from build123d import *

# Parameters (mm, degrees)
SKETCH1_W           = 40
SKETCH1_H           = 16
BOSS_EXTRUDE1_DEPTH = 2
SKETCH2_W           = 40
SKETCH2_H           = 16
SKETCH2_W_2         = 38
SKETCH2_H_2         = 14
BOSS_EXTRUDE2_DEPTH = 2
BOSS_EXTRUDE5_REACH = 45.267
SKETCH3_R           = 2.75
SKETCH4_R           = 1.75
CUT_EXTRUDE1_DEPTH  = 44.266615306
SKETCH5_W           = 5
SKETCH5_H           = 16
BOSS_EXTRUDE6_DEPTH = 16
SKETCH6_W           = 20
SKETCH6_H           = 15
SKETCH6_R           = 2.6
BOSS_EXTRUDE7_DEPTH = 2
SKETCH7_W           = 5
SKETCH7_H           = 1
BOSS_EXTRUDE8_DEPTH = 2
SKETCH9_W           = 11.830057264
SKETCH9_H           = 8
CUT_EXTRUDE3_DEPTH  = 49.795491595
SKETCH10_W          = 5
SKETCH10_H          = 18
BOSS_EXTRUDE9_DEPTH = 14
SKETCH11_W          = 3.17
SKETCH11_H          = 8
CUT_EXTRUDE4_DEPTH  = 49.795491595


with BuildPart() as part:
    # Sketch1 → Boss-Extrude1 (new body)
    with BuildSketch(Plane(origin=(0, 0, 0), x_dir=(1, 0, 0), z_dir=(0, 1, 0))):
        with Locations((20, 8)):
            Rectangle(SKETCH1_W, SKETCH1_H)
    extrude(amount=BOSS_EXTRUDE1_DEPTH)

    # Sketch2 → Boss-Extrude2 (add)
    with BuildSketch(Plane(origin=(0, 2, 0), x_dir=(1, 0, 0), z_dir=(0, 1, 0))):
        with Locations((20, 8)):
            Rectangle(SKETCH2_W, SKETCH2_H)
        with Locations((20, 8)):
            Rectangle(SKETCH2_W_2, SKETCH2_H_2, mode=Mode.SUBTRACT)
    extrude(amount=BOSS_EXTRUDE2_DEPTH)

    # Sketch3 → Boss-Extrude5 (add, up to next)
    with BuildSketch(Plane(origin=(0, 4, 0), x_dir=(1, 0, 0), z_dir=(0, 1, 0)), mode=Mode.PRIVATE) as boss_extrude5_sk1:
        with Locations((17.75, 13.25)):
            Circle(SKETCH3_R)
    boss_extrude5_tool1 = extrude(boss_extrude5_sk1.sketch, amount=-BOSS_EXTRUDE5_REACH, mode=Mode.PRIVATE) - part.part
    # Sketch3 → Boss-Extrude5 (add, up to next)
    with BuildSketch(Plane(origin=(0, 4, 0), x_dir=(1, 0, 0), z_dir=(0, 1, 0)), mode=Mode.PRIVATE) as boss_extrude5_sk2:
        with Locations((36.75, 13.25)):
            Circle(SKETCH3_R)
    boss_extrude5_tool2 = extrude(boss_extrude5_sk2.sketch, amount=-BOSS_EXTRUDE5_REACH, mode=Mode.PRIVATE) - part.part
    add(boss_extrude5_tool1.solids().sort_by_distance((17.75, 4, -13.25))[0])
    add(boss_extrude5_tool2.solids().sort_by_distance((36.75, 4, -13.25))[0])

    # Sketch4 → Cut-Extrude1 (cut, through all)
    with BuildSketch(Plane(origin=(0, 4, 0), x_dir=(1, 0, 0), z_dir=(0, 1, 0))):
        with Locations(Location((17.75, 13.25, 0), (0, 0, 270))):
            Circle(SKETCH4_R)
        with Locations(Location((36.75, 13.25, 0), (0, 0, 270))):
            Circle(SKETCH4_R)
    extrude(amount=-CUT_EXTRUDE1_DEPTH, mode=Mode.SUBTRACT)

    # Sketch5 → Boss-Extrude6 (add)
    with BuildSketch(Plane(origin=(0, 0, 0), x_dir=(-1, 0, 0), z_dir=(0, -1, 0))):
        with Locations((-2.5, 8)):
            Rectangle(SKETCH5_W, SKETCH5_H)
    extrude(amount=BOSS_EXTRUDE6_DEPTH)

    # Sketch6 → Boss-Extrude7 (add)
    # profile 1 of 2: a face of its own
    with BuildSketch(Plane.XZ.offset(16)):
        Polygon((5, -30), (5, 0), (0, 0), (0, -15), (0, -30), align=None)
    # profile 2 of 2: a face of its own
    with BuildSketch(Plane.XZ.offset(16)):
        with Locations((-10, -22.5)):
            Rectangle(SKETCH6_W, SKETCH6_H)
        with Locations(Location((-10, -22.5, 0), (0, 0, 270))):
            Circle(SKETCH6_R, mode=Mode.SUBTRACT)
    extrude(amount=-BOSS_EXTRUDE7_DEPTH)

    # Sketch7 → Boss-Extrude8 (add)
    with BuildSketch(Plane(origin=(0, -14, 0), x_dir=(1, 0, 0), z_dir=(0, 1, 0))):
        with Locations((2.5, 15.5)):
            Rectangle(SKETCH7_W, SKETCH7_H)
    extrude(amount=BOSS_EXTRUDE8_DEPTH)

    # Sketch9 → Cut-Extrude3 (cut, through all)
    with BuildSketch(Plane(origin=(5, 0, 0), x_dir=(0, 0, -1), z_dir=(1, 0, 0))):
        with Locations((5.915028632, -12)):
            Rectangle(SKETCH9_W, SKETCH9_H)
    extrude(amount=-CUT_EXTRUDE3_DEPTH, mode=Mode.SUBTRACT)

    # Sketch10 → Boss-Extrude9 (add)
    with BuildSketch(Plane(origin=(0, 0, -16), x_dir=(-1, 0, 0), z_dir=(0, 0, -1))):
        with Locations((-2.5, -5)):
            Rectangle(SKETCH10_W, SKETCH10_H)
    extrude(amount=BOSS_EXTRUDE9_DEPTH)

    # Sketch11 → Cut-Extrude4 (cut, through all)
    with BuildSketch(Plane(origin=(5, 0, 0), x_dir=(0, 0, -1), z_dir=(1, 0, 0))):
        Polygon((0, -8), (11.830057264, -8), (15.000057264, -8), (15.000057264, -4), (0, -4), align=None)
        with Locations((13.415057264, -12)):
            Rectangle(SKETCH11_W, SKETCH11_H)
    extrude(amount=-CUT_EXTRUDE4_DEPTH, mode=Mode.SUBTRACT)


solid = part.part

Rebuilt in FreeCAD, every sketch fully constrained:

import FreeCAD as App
import Part
import Sketcher

doc = App.newDocument("Part")
params = doc.addObject("Spreadsheet::Sheet", "Params")
for row, (alias, value) in enumerate([
    ("sketch1_width", "40 mm"),
    ("sketch1_height", "16 mm"),
    ("pad1_length", "2 mm"),
    ("sketch2_width", "40 mm"),
    ("sketch2_width2", "38 mm"),
    ("sketch2_height", "16 mm"),
    ("sketch2_height2", "14 mm"),
    ("pad2_length", "2 mm"),
    ("sketch3_diameter", "5.5 mm"),
    ("sketch4_diameter", "5.5 mm"),
    ("sketch5_diameter", "3.5 mm"),
    ("sketch6_width", "5 mm"),
    ("sketch6_height", "16 mm"),
    ("pad5_length", "16 mm"),
    ("sketch7_diameter", "5.2 mm"),
    ("sketch7_width", "5 mm"),
    ("sketch7_width2", "20 mm"),
    ("sketch7_height", "30 mm"),
    ("pad6_length", "2 mm"),
    ("sketch8_width", "5 mm"),
    ("sketch8_height", "1 mm"),
    ("pad7_length", "2 mm"),
    ("sketch9_width", "8 mm"),
    ("sketch10_width", "5 mm"),
    ("sketch10_height", "18 mm"),
    ("pad8_length", "14 mm"),
    ("sketch11_width", "8 mm"),
    ("sketch11_width2", "12 mm"),
    ("sketch11_height", "3.17 mm"),
], start=1):
    params.set(f"A{row}", alias)
    params.set(f"B{row}", "=" + value)
    params.setAlias(f"B{row}", alias)

body = doc.addObject("PartDesign::Body", "Body")

# Sketch on XZ plane
sketch1 = body.newObject("Sketcher::SketchObject", "Sketch")
sketch1.AttachmentSupport = (doc.getObject("XZ_Plane"), [""])
sketch1.MapMode = "FlatFace"
sketch1.addGeometry([
    Part.LineSegment(App.Vector(0, -16, 0), App.Vector(0, 0, 0)),
    Part.LineSegment(App.Vector(0, 0, 0), App.Vector(40, 0, 0)),
    Part.LineSegment(App.Vector(40, 0, 0), App.Vector(40, -16, 0)),
    Part.LineSegment(App.Vector(40, -16, 0), App.Vector(0, -16, 0)),
], False)
sketch1.addConstraint([
    Sketcher.Constraint("Coincident", 0, 2, 1, 1),
    Sketcher.Constraint("Coincident", 1, 2, 2, 1),
    Sketcher.Constraint("Coincident", 2, 2, 3, 1),
    Sketcher.Constraint("Coincident", 3, 2, 0, 1),
    Sketcher.Constraint("Vertical", 0),
    Sketcher.Constraint("Horizontal", 1),
    Sketcher.Constraint("Vertical", 2),
    Sketcher.Constraint("Horizontal", 3),
    Sketcher.Constraint("Coincident", 0, 2, -1, 1),
    Sketcher.Constraint("DistanceX", 1, 1, 1, 2, 40.0),
    Sketcher.Constraint("DistanceY", 0, 1, 0, 2, 16.0),
])
sketch1.setExpression("Constraints[9]", "Params.sketch1_width")
sketch1.setExpression("Constraints[10]", "Params.sketch1_height")
pad1 = body.newObject("PartDesign::Pad", "Pad")
pad1.Profile = sketch1
pad1.setExpression("Length", "Params.pad1_length")
pad1.Reversed = True

# Sketch on XZ plane
sketch2 = body.newObject("Sketcher::SketchObject", "Sketch001")
sketch2.AttachmentSupport = (doc.getObject("XZ_Plane"), [""])
sketch2.MapMode = "FlatFace"
sketch2.AttachmentOffset = App.Placement(App.Vector(0, 0, -2), App.Rotation())
sketch2.addGeometry([
    Part.LineSegment(App.Vector(0, -16, 0), App.Vector(0, 0, 0)),  # 0
    Part.LineSegment(App.Vector(0, 0, 0), App.Vector(40, 0, 0)),  # 1
    Part.LineSegment(App.Vector(40, 0, 0), App.Vector(40, -16, 0)),  # 2
    Part.LineSegment(App.Vector(40, -16, 0), App.Vector(0, -16, 0)),  # 3
    Part.LineSegment(App.Vector(39, -1, 0), App.Vector(1, -1, 0)),  # 4
    Part.LineSegment(App.Vector(1, -1, 0), App.Vector(1, -15, 0)),  # 5
    Part.LineSegment(App.Vector(1, -15, 0), App.Vector(39, -15, 0)),  # 6
    Part.LineSegment(App.Vector(39, -15, 0), App.Vector(39, -1, 0)),  # 7
], False)
sketch2.addConstraint([
    Sketcher.Constraint("Coincident", 0, 2, 1, 1),
    Sketcher.Constraint("Coincident", 1, 2, 2, 1),
    Sketcher.Constraint("Coincident", 2, 2, 3, 1),
    Sketcher.Constraint("Coincident", 3, 2, 0, 1),
    Sketcher.Constraint("Coincident", 4, 2, 5, 1),
    Sketcher.Constraint("Coincident", 5, 2, 6, 1),
    Sketcher.Constraint("Coincident", 6, 2, 7, 1),
    Sketcher.Constraint("Coincident", 7, 2, 4, 1),
    Sketcher.Constraint("Vertical", 0),
    Sketcher.Constraint("Horizontal", 1),
    Sketcher.Constraint("Vertical", 2),
    Sketcher.Constraint("Horizontal", 3),
    Sketcher.Constraint("Horizontal", 4),
    Sketcher.Constraint("Vertical", 5),
    Sketcher.Constraint("Horizontal", 6),
    Sketcher.Constraint("Vertical", 7),
    Sketcher.Constraint("Coincident", 0, 2, -1, 1),
    Sketcher.Constraint("DistanceX", 1, 1, 1, 2, 40.0),
    Sketcher.Constraint("DistanceX", 4, 2, 4, 1, 38.0),
    Sketcher.Constraint("DistanceY", 0, 1, 0, 2, 16.0),
    Sketcher.Constraint("DistanceY", 5, 2, 5, 1, 14.0),
    Sketcher.Constraint("DistanceX", -1, 1, 4, 2, 1.0),
    Sketcher.Constraint("DistanceY", 4, 2, -1, 1, 1.0),
])
sketch2.setExpression("Constraints[17]", "Params.sketch2_width")
sketch2.setExpression("Constraints[18]", "Params.sketch2_width2")
sketch2.setExpression("Constraints[19]", "Params.sketch2_height")
sketch2.setExpression("Constraints[20]", "Params.sketch2_height2")
pad2 = body.newObject("PartDesign::Pad", "Pad001")
pad2.Profile = sketch2
pad2.setExpression("Length", "Params.pad2_length")
pad2.Reversed = True

# Sketch on XZ plane
sketch3 = body.newObject("Sketcher::SketchObject", "Sketch002")
sketch3.AttachmentSupport = (doc.getObject("XZ_Plane"), [""])
sketch3.MapMode = "FlatFace"
sketch3.AttachmentOffset = App.Placement(App.Vector(0, 0, -4), App.Rotation())
sketch3.addGeometry(Part.Circle(App.Vector(17.8, -13.2, 0), App.Vector(0, 0, 1), 2.8), False)
sketch3.addConstraint([
    Sketcher.Constraint("Diameter", 0, 5.5),
    Sketcher.Constraint("DistanceX", -1, 1, 0, 3, 17.75),
    Sketcher.Constraint("DistanceY", 0, 3, -1, 1, 13.25),
])
sketch3.setExpression("Constraints[0]", "Params.sketch3_diameter")
pad3 = body.newObject("PartDesign::Pad", "Pad002")
pad3.Profile = sketch3
pad3.Type = "UpToFirst"

# Sketch on XZ plane
sketch4 = body.newObject("Sketcher::SketchObject", "Sketch003")
sketch4.AttachmentSupport = (doc.getObject("XZ_Plane"), [""])
sketch4.MapMode = "FlatFace"
sketch4.AttachmentOffset = App.Placement(App.Vector(0, 0, -4), App.Rotation())
sketch4.addGeometry(Part.Circle(App.Vector(36.8, -13.2, 0), App.Vector(0, 0, 1), 2.8), False)
sketch4.addConstraint([
    Sketcher.Constraint("Diameter", 0, 5.5),
    Sketcher.Constraint("DistanceX", -1, 1, 0, 3, 36.75),
    Sketcher.Constraint("DistanceY", 0, 3, -1, 1, 13.25),
])
sketch4.setExpression("Constraints[0]", "Params.sketch4_diameter")
pad4 = body.newObject("PartDesign::Pad", "Pad003")
pad4.Profile = sketch4
pad4.Type = "UpToFirst"

# Sketch on XZ plane
sketch5 = body.newObject("Sketcher::SketchObject", "Sketch004")
sketch5.AttachmentSupport = (doc.getObject("XZ_Plane"), [""])
sketch5.MapMode = "FlatFace"
sketch5.AttachmentOffset = App.Placement(App.Vector(0, 0, -4), App.Rotation())
sketch5.addGeometry([
    Part.Circle(App.Vector(17.8, -13.2, 0), App.Vector(0, 0, 1), 1.8),
    Part.Circle(App.Vector(36.8, -13.2, 0), App.Vector(0, 0, 1), 1.8),
], False)
sketch5.addConstraint([
    Sketcher.Constraint("Equal", 0, 1),
    Sketcher.Constraint("Horizontal", 0, 3, 1, 3),
    Sketcher.Constraint("Diameter", 0, 3.5),
    Sketcher.Constraint("DistanceX", 0, 3, 1, 3, 19.0),
    Sketcher.Constraint("DistanceX", -1, 1, 0, 3, 17.75),
    Sketcher.Constraint("DistanceY", 0, 3, -1, 1, 13.25),
])
sketch5.setExpression("Constraints[2]", "Params.sketch5_diameter")
pocket1 = body.newObject("PartDesign::Pocket", "Pocket")
pocket1.Profile = sketch5
pocket1.Type = "ThroughAll"
pocket1.Reversed = True

# Sketch on XZ plane
sketch6 = body.newObject("Sketcher::SketchObject", "Sketch005")
sketch6.AttachmentSupport = (doc.getObject("XZ_Plane"), [""])
sketch6.MapMode = "FlatFace"
sketch6.addGeometry([
    Part.LineSegment(App.Vector(5, -16, 0), App.Vector(5, 0, 0)),
    Part.LineSegment(App.Vector(5, 0, 0), App.Vector(0, 0, 0)),
    Part.LineSegment(App.Vector(0, 0, 0), App.Vector(0, -16, 0)),
    Part.LineSegment(App.Vector(0, -16, 0), App.Vector(5, -16, 0)),
], False)
sketch6.addConstraint([
    Sketcher.Constraint("Coincident", 0, 2, 1, 1),
    Sketcher.Constraint("Coincident", 1, 2, 2, 1),
    Sketcher.Constraint("Coincident", 2, 2, 3, 1),
    Sketcher.Constraint("Coincident", 3, 2, 0, 1),
    Sketcher.Constraint("Vertical", 0),
    Sketcher.Constraint("Horizontal", 1),
    Sketcher.Constraint("Vertical", 2),
    Sketcher.Constraint("Horizontal", 3),
    Sketcher.Constraint("Coincident", 1, 2, -1, 1),
    Sketcher.Constraint("DistanceX", 1, 2, 1, 1, 5.0),
    Sketcher.Constraint("DistanceY", 0, 1, 0, 2, 16.0),
])
sketch6.setExpression("Constraints[9]", "Params.sketch6_width")
sketch6.setExpression("Constraints[10]", "Params.sketch6_height")
pad5 = body.newObject("PartDesign::Pad", "Pad004")
pad5.Profile = sketch6
pad5.setExpression("Length", "Params.pad5_length")

# Sketch on XZ plane
sketch7 = body.newObject("Sketcher::SketchObject", "Sketch006")
sketch7.AttachmentSupport = (doc.getObject("XZ_Plane"), [""])
sketch7.MapMode = "FlatFace"
sketch7.AttachmentOffset = App.Placement(App.Vector(0, 0, 16), App.Rotation())
sketch7.addGeometry([
    Part.LineSegment(App.Vector(5, -30, 0), App.Vector(5, 0, 0)),  # 0
    Part.LineSegment(App.Vector(5, 0, 0), App.Vector(0, 0, 0)),  # 1
    Part.LineSegment(App.Vector(0, 0, 0), App.Vector(0, -15, 0)),  # 2
    Part.LineSegment(App.Vector(0, -15, 0), App.Vector(-20, -15, 0)),  # 3
    Part.LineSegment(App.Vector(-20, -15, 0), App.Vector(-20, -30, 0)),  # 4
    Part.LineSegment(App.Vector(-20, -30, 0), App.Vector(5, -30, 0)),  # 5
    Part.Circle(App.Vector(-10, -22.5, 0), App.Vector(0, 0, 1), 2.6),  # 6
], False)
sketch7.addConstraint([
    Sketcher.Constraint("Coincident", 0, 2, 1, 1),
    Sketcher.Constraint("Coincident", 1, 2, 2, 1),
    Sketcher.Constraint("Coincident", 2, 2, 3, 1),
    Sketcher.Constraint("Coincident", 3, 2, 4, 1),
    Sketcher.Constraint("Coincident", 4, 2, 5, 1),
    Sketcher.Constraint("Coincident", 5, 2, 0, 1),
    Sketcher.Constraint("Vertical", 0),
    Sketcher.Constraint("Horizontal", 1),
    Sketcher.Constraint("Vertical", 2),
    Sketcher.Constraint("Horizontal", 3),
    Sketcher.Constraint("Vertical", 4),
    Sketcher.Constraint("Horizontal", 5),
    Sketcher.Constraint("Coincident", 1, 2, -1, 1),
    Sketcher.Constraint("Equal", 2, 4),
    Sketcher.Constraint("Diameter", 6, 5.2),
    Sketcher.Constraint("DistanceX", 1, 2, 1, 1, 5.0),
    Sketcher.Constraint("DistanceX", 3, 2, 3, 1, 20.0),
    Sketcher.Constraint("DistanceY", 0, 1, 0, 2, 30.0),
    Sketcher.Constraint("DistanceX", 6, 3, -1, 1, 10.0),
    Sketcher.Constraint("DistanceY", 6, 3, -1, 1, 22.5),
])
sketch7.setExpression("Constraints[14]", "Params.sketch7_diameter")
sketch7.setExpression("Constraints[15]", "Params.sketch7_width")
sketch7.setExpression("Constraints[16]", "Params.sketch7_width2")
sketch7.setExpression("Constraints[17]", "Params.sketch7_height")
pad6 = body.newObject("PartDesign::Pad", "Pad005")
pad6.Profile = sketch7
pad6.setExpression("Length", "Params.pad6_length")
pad6.Reversed = True

# Sketch on XZ plane
sketch8 = body.newObject("Sketcher::SketchObject", "Sketch007")
sketch8.AttachmentSupport = (doc.getObject("XZ_Plane"), [""])
sketch8.MapMode = "FlatFace"
sketch8.AttachmentOffset = App.Placement(App.Vector(0, 0, 14), App.Rotation())
sketch8.addGeometry([
    Part.LineSegment(App.Vector(0, -16, 0), App.Vector(0, -15, 0)),
    Part.LineSegment(App.Vector(0, -15, 0), App.Vector(5, -15, 0)),
    Part.LineSegment(App.Vector(5, -15, 0), App.Vector(5, -16, 0)),
    Part.LineSegment(App.Vector(5, -16, 0), App.Vector(0, -16, 0)),
], False)
sketch8.addConstraint([
    Sketcher.Constraint("Coincident", 0, 2, 1, 1),
    Sketcher.Constraint("Coincident", 1, 2, 2, 1),
    Sketcher.Constraint("Coincident", 2, 2, 3, 1),
    Sketcher.Constraint("Coincident", 3, 2, 0, 1),
    Sketcher.Constraint("Vertical", 0),
    Sketcher.Constraint("Horizontal", 1),
    Sketcher.Constraint("Vertical", 2),
    Sketcher.Constraint("Horizontal", 3),
    Sketcher.Constraint("PointOnObject", 0, 2, -2),
    Sketcher.Constraint("DistanceX", 1, 1, 1, 2, 5.0),
    Sketcher.Constraint("DistanceY", 0, 1, 0, 2, 1.0),
    Sketcher.Constraint("DistanceY", 0, 2, -1, 1, 15.0),
])
sketch8.setExpression("Constraints[9]", "Params.sketch8_width")
sketch8.setExpression("Constraints[10]", "Params.sketch8_height")
pad7 = body.newObject("PartDesign::Pad", "Pad006")
pad7.Profile = sketch8
pad7.setExpression("Length", "Params.pad7_length")
pad7.Reversed = True

# Sketch on YZ plane
sketch9 = body.newObject("Sketcher::SketchObject", "Sketch008")
sketch9.AttachmentSupport = (doc.getObject("YZ_Plane"), [""])
sketch9.MapMode = "FlatFace"
sketch9.AttachmentOffset = App.Placement(App.Vector(0, 0, 5), App.Rotation())
sketch9.addGeometry([
    Part.LineSegment(App.Vector(-8, 0, 0), App.Vector(-16, 0, 0)),
    Part.LineSegment(App.Vector(-16, 0, 0), App.Vector(-16, -12, 0)),
    Part.LineSegment(App.Vector(-16, -12, 0), App.Vector(-8, -12, 0)),
    Part.LineSegment(App.Vector(-8, -12, 0), App.Vector(-8, 0, 0)),
], False)
sketch9.addConstraint([
    Sketcher.Constraint("Coincident", 0, 2, 1, 1),
    Sketcher.Constraint("Coincident", 1, 2, 2, 1),
    Sketcher.Constraint("Coincident", 2, 2, 3, 1),
    Sketcher.Constraint("Coincident", 3, 2, 0, 1),
    Sketcher.Constraint("Horizontal", 0),
    Sketcher.Constraint("Vertical", 1),
    Sketcher.Constraint("Horizontal", 2),
    Sketcher.Constraint("Vertical", 3),
    Sketcher.Constraint("PointOnObject", 0, 2, -1),
    Sketcher.Constraint("DistanceX", 0, 2, 0, 1, 8.0),
    Sketcher.Constraint("DistanceX", 0, 2, -1, 1, 16.0),
    Sketcher.Constraint("DistanceY", 1, 2, 1, 1, 11.830057),
])
sketch9.setExpression("Constraints[9]", "Params.sketch9_width")
pocket2 = body.newObject("PartDesign::Pocket", "Pocket001")
pocket2.Profile = sketch9
pocket2.Type = "ThroughAll"

# Sketch on XY plane
sketch10 = body.newObject("Sketcher::SketchObject", "Sketch009")
sketch10.AttachmentSupport = (doc.getObject("XY_Plane"), [""])
sketch10.MapMode = "FlatFace"
sketch10.AttachmentOffset = App.Placement(App.Vector(0, 0, -16), App.Rotation())
sketch10.addGeometry([
    Part.LineSegment(App.Vector(5, 4, 0), App.Vector(5, -14, 0)),
    Part.LineSegment(App.Vector(5, -14, 0), App.Vector(0, -14, 0)),
    Part.LineSegment(App.Vector(0, -14, 0), App.Vector(0, 4, 0)),
    Part.LineSegment(App.Vector(0, 4, 0), App.Vector(5, 4, 0)),
], False)
sketch10.addConstraint([
    Sketcher.Constraint("Coincident", 0, 2, 1, 1),
    Sketcher.Constraint("Coincident", 1, 2, 2, 1),
    Sketcher.Constraint("Coincident", 2, 2, 3, 1),
    Sketcher.Constraint("Coincident", 3, 2, 0, 1),
    Sketcher.Constraint("Vertical", 0),
    Sketcher.Constraint("Horizontal", 1),
    Sketcher.Constraint("Vertical", 2),
    Sketcher.Constraint("Horizontal", 3),
    Sketcher.Constraint("PointOnObject", 1, 2, -2),
    Sketcher.Constraint("DistanceX", 1, 2, 1, 1, 5.0),
    Sketcher.Constraint("DistanceY", 0, 2, 0, 1, 18.0),
    Sketcher.Constraint("DistanceY", 0, 2, -1, 1, 14.0),
])
sketch10.setExpression("Constraints[9]", "Params.sketch10_width")
sketch10.setExpression("Constraints[10]", "Params.sketch10_height")
pad8 = body.newObject("PartDesign::Pad", "Pad007")
pad8.Profile = sketch10
pad8.setExpression("Length", "Params.pad8_length")
pad8.Reversed = True

# Sketch on YZ plane
sketch11 = body.newObject("Sketcher::SketchObject", "Sketch010")
sketch11.AttachmentSupport = (doc.getObject("YZ_Plane"), [""])
sketch11.MapMode = "FlatFace"
sketch11.AttachmentOffset = App.Placement(App.Vector(0, 0, 5), App.Rotation())
sketch11.addGeometry([
    Part.LineSegment(App.Vector(-8, 0, 0), App.Vector(-8, -11.8, 0)),  # 0
    Part.LineSegment(App.Vector(-8, -11.8, 0), App.Vector(-16, -11.8, 0)),  # 1
    Part.LineSegment(App.Vector(-16, -11.8, 0), App.Vector(-16, -15, 0)),  # 2
    Part.LineSegment(App.Vector(-16, -15, 0), App.Vector(-4, -15, 0)),  # 3
    Part.LineSegment(App.Vector(-4, -15, 0), App.Vector(-4, 0, 0)),  # 4
    Part.LineSegment(App.Vector(-4, 0, 0), App.Vector(-8, 0, 0)),  # 5
], False)
sketch11.addConstraint([
    Sketcher.Constraint("Coincident", 0, 2, 1, 1),
    Sketcher.Constraint("Coincident", 1, 2, 2, 1),
    Sketcher.Constraint("Coincident", 2, 2, 3, 1),
    Sketcher.Constraint("Coincident", 3, 2, 4, 1),
    Sketcher.Constraint("Coincident", 4, 2, 5, 1),
    Sketcher.Constraint("Coincident", 5, 2, 0, 1),
    Sketcher.Constraint("Vertical", 0),
    Sketcher.Constraint("Horizontal", 1),
    Sketcher.Constraint("Vertical", 2),
    Sketcher.Constraint("Horizontal", 3),
    Sketcher.Constraint("Vertical", 4),
    Sketcher.Constraint("Horizontal", 5),
    Sketcher.Constraint("PointOnObject", 4, 2, -1),
    Sketcher.Constraint("DistanceX", 1, 2, 1, 1, 8.0),
    Sketcher.Constraint("DistanceX", 3, 1, 3, 2, 12.0),
    Sketcher.Constraint("DistanceX", 0, 2, -1, 1, 8.0),
    Sketcher.Constraint("DistanceY", 2, 2, 2, 1, 3.17),
    Sketcher.Constraint("DistanceY", 0, 2, 0, 1, 11.830057),
])
sketch11.setExpression("Constraints[13]", "Params.sketch11_width")
sketch11.setExpression("Constraints[14]", "Params.sketch11_width2")
sketch11.setExpression("Constraints[16]", "Params.sketch11_height")
pocket3 = body.newObject("PartDesign::Pocket", "Pocket002")
pocket3.Profile = sketch11
pocket3.Type = "ThroughAll"

doc.recompute()
